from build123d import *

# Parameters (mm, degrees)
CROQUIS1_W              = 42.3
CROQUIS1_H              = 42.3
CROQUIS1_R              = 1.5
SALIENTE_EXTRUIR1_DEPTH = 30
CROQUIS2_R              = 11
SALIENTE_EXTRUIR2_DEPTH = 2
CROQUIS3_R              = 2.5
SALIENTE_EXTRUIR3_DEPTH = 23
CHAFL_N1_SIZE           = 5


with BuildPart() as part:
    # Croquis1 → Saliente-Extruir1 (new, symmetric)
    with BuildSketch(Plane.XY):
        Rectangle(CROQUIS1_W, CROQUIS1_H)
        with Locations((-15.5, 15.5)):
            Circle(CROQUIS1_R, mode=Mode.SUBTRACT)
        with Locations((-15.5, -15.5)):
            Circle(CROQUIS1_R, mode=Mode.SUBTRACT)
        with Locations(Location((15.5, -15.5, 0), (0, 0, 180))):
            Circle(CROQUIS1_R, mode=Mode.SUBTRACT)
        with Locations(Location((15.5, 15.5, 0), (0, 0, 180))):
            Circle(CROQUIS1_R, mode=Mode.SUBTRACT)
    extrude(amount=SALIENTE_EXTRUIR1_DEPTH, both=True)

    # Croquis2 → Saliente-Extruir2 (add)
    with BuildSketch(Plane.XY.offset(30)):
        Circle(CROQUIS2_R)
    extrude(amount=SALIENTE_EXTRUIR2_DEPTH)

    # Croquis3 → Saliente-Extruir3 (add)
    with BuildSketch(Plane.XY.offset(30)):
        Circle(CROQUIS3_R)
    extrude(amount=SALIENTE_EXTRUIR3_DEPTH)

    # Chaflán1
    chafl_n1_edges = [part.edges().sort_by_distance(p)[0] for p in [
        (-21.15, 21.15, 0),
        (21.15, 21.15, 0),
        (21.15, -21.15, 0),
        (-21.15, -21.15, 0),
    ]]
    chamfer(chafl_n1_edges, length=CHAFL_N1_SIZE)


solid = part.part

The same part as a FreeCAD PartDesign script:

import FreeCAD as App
import Part
import Sketcher
Q = App.Units.Quantity


def edges_at(feature, points):
    """Names of the edges that pass closest to the given points."""
    edges = feature.Shape.Edges
    near = lambda p: min(range(len(edges)), key=lambda i: edges[i].distToShape(Part.Vertex(*p))[0])
    return sorted({f"Edge{near(p) + 1}" for p in points})

doc = App.newDocument("Part")
params = doc.addObject("Spreadsheet::Sheet", "Params")
for row, (alias, value) in enumerate([
    ("sketch1_diameter", "3 mm"),
    ("sketch1_width", "42.3 mm"),
    ("pad1_length", "60 mm"),
    ("sketch2_diameter", "22 mm"),
    ("pad2_length", "2 mm"),
    ("sketch3_diameter", "5 mm"),
    ("pad3_length", "23 mm"),
    ("chamfer_size", "5 mm"),
], start=1):
    params.set(f"A{row}", alias)
    params.set(f"B{row}", "=" + value)
    params.setAlias(f"B{row}", alias)

body = doc.addObject("PartDesign::Body", "Body")

# Sketch on XY plane
sketch1 = body.newObject("Sketcher::SketchObject", "Sketch")
sketch1.AttachmentSupport = (doc.getObject("XY_Plane"), [""])
sketch1.MapMode = "FlatFace"
sketch1.addGeometry(Part.LineSegment(App.Vector(-21.1, 21.1, 0), App.Vector(-21.1, -21.1, 0)), False)
sketch1.addGeometry(Part.LineSegment(App.Vector(-21.1, -21.1, 0), App.Vector(21.1, -21.1, 0)), False)
sketch1.addGeometry(Part.LineSegment(App.Vector(21.1, -21.1, 0), App.Vector(21.1, 21.1, 0)), False)
sketch1.addGeometry(Part.LineSegment(App.Vector(21.1, 21.1, 0), App.Vector(-21.1, 21.1, 0)), False)
sketch1.addGeometry(Part.Circle(App.Vector(-15.5, -15.5, 0), App.Vector(0, 0, 1), 1.5), False)
sketch1.addGeometry(Part.Circle(App.Vector(15.5, -15.5, 0), App.Vector(0, 0, 1), 1.5), False)
sketch1.addGeometry(Part.Circle(App.Vector(-15.5, 15.5, 0), App.Vector(0, 0, 1), 1.5), False)
sketch1.addGeometry(Part.Circle(App.Vector(15.5, 15.5, 0), App.Vector(0, 0, 1), 1.5), False)
sketch1.addConstraint(Sketcher.Constraint("Coincident", 0, 2, 1, 1))
sketch1.addConstraint(Sketcher.Constraint("Coincident", 1, 2, 2, 1))
sketch1.addConstraint(Sketcher.Constraint("Coincident", 2, 2, 3, 1))
sketch1.addConstraint(Sketcher.Constraint("Coincident", 3, 2, 0, 1))
sketch1.addConstraint(Sketcher.Constraint("Vertical", 0))
sketch1.addConstraint(Sketcher.Constraint("Horizontal", 1))
sketch1.addConstraint(Sketcher.Constraint("Vertical", 2))
sketch1.addConstraint(Sketcher.Constraint("Horizontal", 3))
sketch1.addConstraint(Sketcher.Constraint("Equal", 4, 5))
sketch1.addConstraint(Sketcher.Constraint("Equal", 5, 6))
sketch1.addConstraint(Sketcher.Constraint("Equal", 6, 7))
sketch1.addConstraint(Sketcher.Constraint("Symmetric", 5, 3, 6, 3, -1, 1))
sketch1.addConstraint(Sketcher.Constraint("Symmetric", 4, 3, 7, 3, -1, 1))
sketch1.addConstraint(Sketcher.Constraint("Symmetric", 0, 2, 2, 2, -1, 1))
sketch1.addConstraint(Sketcher.Constraint("Symmetric", 4, 3, 5, 3, -2))
sketch1.addConstraint(Sketcher.Constraint("Equal", 3, 0))
sketch1.addConstraint(Sketcher.Constraint("Diameter", 4, Q("3 mm")))
sketch1.addConstraint(Sketcher.Constraint("DistanceX", 1, 1, 1, 2, Q("42.3 mm")))
sketch1.addConstraint(Sketcher.Constraint("DistanceX", 4, 3, 5, 3, Q("31 mm")))
sketch1.addConstraint(Sketcher.Constraint("DistanceY", 4, 3, 6, 3, Q("31 mm")))
sketch1.setExpression("Constraints[16]", "Params.sketch1_diameter")
sketch1.setExpression("Constraints[17]", "Params.sketch1_width")
pad1 = body.newObject("PartDesign::Pad", "Pad")
pad1.Profile = sketch1
pad1.setExpression("Length", "Params.pad1_length")
pad1.Midplane = True

# Sketch on XY plane
sketch2 = body.newObject("Sketcher::SketchObject", "Sketch001")
sketch2.AttachmentSupport = (doc.getObject("XY_Plane"), [""])
sketch2.MapMode = "FlatFace"
sketch2.AttachmentOffset = App.Placement(App.Vector(0, 0, 30), App.Rotation())
sketch2.addGeometry(Part.Circle(App.Vector(0, 0, 0), App.Vector(0, 0, 1), 11), False)
sketch2.addConstraint(Sketcher.Constraint("Coincident", 0, 3, -1, 1))
sketch2.addConstraint(Sketcher.Constraint("Diameter", 0, Q("22 mm")))
sketch2.setExpression("Constraints[1]", "Params.sketch2_diameter")
pad2 = body.newObject("PartDesign::Pad", "Pad001")
pad2.Profile = sketch2
pad2.setExpression("Length", "Params.pad2_length")

# Sketch on XY plane
sketch3 = body.newObject("Sketcher::SketchObject", "Sketch002")
sketch3.AttachmentSupport = (doc.getObject("XY_Plane"), [""])
sketch3.MapMode = "FlatFace"
sketch3.AttachmentOffset = App.Placement(App.Vector(0, 0, 30), App.Rotation())
sketch3.addGeometry(Part.Circle(App.Vector(0, 0, 0), App.Vector(0, 0, 1), 2.5), False)
sketch3.addConstraint(Sketcher.Constraint("Coincident", 0, 3, -1, 1))
sketch3.addConstraint(Sketcher.Constraint("Diameter", 0, Q("5 mm")))
sketch3.setExpression("Constraints[1]", "Params.sketch3_diameter")
pad3 = body.newObject("PartDesign::Pad", "Pad002")
pad3.Profile = sketch3
pad3.setExpression("Length", "Params.pad3_length")
doc.recompute()

chamfer = body.newObject("PartDesign::Chamfer", "Chamfer")
chamfer.Base = (pad3, edges_at(pad3, [
    (-21.15, 21.15, 0),
    (21.15, 21.15, 0),
    (21.15, -21.15, 0),
    (-21.15, -21.15, 0),
]))
chamfer.setExpression("Size", "Params.chamfer_size")

doc.recompute()
